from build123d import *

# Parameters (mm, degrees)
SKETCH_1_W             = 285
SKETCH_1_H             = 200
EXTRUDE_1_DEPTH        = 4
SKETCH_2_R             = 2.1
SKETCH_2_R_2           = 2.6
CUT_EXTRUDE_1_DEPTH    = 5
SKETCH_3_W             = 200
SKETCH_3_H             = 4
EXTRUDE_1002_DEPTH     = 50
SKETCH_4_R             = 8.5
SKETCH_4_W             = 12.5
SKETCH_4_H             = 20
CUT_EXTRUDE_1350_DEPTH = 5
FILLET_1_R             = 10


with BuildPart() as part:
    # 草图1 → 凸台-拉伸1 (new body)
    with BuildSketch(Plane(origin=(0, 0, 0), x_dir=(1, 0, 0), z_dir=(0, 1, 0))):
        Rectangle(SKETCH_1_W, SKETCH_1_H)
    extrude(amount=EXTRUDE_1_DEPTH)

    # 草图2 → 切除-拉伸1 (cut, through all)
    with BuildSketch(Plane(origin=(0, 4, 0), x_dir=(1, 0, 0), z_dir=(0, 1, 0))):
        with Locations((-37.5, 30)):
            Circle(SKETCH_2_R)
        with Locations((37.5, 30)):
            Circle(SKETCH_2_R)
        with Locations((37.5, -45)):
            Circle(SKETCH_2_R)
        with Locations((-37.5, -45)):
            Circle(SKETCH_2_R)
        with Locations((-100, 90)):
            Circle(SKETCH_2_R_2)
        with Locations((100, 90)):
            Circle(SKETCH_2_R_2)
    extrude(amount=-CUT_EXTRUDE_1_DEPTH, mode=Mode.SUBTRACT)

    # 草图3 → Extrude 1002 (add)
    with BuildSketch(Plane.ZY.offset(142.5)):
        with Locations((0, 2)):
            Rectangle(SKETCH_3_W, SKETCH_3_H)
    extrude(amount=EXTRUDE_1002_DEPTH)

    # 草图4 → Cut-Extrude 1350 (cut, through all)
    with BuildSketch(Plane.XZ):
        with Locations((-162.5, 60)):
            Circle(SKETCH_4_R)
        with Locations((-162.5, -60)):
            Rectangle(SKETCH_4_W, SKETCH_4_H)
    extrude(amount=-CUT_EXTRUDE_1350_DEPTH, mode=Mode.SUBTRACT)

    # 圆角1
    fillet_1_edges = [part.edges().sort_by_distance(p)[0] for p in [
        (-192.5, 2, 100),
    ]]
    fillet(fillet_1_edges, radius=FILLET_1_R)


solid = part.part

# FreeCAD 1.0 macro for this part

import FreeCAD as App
import Part
import Sketcher
from FreeCAD import Vector


def edges_at(feature, points):
    """Names of the edges that pass closest to the given points."""
    edges = feature.Shape.Edges
    near = lambda p: min(range(len(edges)), key=lambda i: edges[i].distToShape(Part.Vertex(*p))[0])
    return sorted({f"Edge{near(p) + 1}" for p in points})


def add_polygon(sketch, points):
    """Adds a closed chain of lines whose ends are joined by coincident constraints."""
    first, n = sketch.GeometryCount, len(points)
    for a, b in zip(points, points[1:] + points[:1]):
        sketch.addGeometry(Part.LineSegment(App.Vector(*a, 0), App.Vector(*b, 0)), False)
    for i in range(n):
        sketch.addConstraint(Sketcher.Constraint("Coincident", first + i, 2, first + (i + 1) % n, 1))

doc = App.newDocument("Part")
body = doc.addObject("PartDesign::Body", "Body")

# Sketch on XZ plane
sketch1 = body.newObject("Sketcher::SketchObject", "Sketch")
sketch1.AttachmentSupport = (doc.getObject("XZ_Plane"), [""])
sketch1.MapMode = "FlatFace"
add_polygon(sketch1, [(-142, -100), (-142, 100), (142, 100), (142, -100)])  # lines 0-3
sketch1.addConstraint(Sketcher.Constraint("Vertical", 0))
sketch1.addConstraint(Sketcher.Constraint("Horizontal", 1))
sketch1.addConstraint(Sketcher.Constraint("Vertical", 2))
sketch1.addConstraint(Sketcher.Constraint("Horizontal", 3))
sketch1.addConstraint(Sketcher.Constraint("Symmetric", 0, 2, 2, 2, -1, 1))
sketch1.addConstraint(Sketcher.Constraint("DistanceX", 1, 1, 1, 2, 285.0))
sketch1.addConstraint(Sketcher.Constraint("DistanceY", 0, 1, 0, 2, 200.0))
pad1 = body.newObject("PartDesign::Pad", "Pad")
pad1.Profile = sketch1
pad1.Length = 4
pad1.Reversed = True

# Sketch on XZ plane
sketch2 = body.newObject("Sketcher::SketchObject", "Sketch001")
sketch2.AttachmentSupport = (doc.getObject("XZ_Plane"), [""])
sketch2.MapMode = "FlatFace"
sketch2.AttachmentOffset = App.Placement(Vector(0, 0, -4), App.Rotation())
sketch2.addGeometry(Part.Circle(Vector(-37.5, -30, 0), Vector(0, 0, 1), 2.1), False)
sketch2.addGeometry(Part.Circle(Vector(37.5, -30, 0), Vector(0, 0, 1), 2.1), False)
sketch2.addGeometry(Part.Circle(Vector(37.5, 45, 0), Vector(0, 0, 1), 2.1), False)
sketch2.addGeometry(Part.Circle(Vector(-37.5, 45, 0), Vector(0, 0, 1), 2.1), False)
sketch2.addGeometry(Part.Circle(Vector(-100, -90, 0), Vector(0, 0, 1), 2.6), False)
sketch2.addGeometry(Part.Circle(Vector(100, -90, 0), Vector(0, 0, 1), 2.6), False)
sketch2.addConstraint(Sketcher.Constraint("Equal", 0, 1))
sketch2.addConstraint(Sketcher.Constraint("Equal", 1, 2))
sketch2.addConstraint(Sketcher.Constraint("Equal", 2, 3))
sketch2.addConstraint(Sketcher.Constraint("Equal", 4, 5))
sketch2.addConstraint(Sketcher.Constraint("Symmetric", 0, 3, 1, 3, -2))
sketch2.addConstraint(Sketcher.Constraint("Symmetric", 2, 3, 3, 3, -2))
sketch2.addConstraint(Sketcher.Constraint("Symmetric", 4, 3, 5, 3, -2))
sketch2.addConstraint(Sketcher.Constraint("Vertical", 1, 3, 2, 3))
sketch2.addConstraint(Sketcher.Constraint("Diameter", 0, 4.2))
sketch2.addConstraint(Sketcher.Constraint("Diameter", 4, 5.2))
sketch2.addConstraint(Sketcher.Constraint("DistanceY", 0, 3, -1, 1, 30.0))
sketch2.addConstraint(Sketcher.Constraint("DistanceY", -1, 1, 2, 3, 45.0))
sketch2.addConstraint(Sketcher.Constraint("DistanceX", 4, 3, -1, 1, 100.0))
sketch2.addConstraint(Sketcher.Constraint("DistanceY", 4, 3, -1, 1, 90.0))
sketch2.addConstraint(Sketcher.Constraint("DistanceX", 0, 3, 1, 3, 75.0))
pocket1 = body.newObject("PartDesign::Pocket", "Pocket")
pocket1.Profile = sketch2
pocket1.Type = "ThroughAll"
pocket1.Reversed = True

# Sketch on YZ plane
sketch3 = body.newObject("Sketcher::SketchObject", "Sketch002")
sketch3.AttachmentSupport = (doc.getObject("YZ_Plane"), [""])
sketch3.MapMode = "FlatFace"
sketch3.AttachmentOffset = App.Placement(Vector(0, 0, -142.5), App.Rotation())
add_polygon(sketch3, [(4, -100), (0, -100), (0, 100), (4, 100)])  # lines 0-3
sketch3.addConstraint(Sketcher.Constraint("Horizontal", 0))
sketch3.addConstraint(Sketcher.Constraint("Vertical", 1))
sketch3.addConstraint(Sketcher.Constraint("Horizontal", 2))
sketch3.addConstraint(Sketcher.Constraint("Vertical", 3))
sketch3.addConstraint(Sketcher.Constraint("Symmetric", 0, 2, 1, 2, -1, 1))
sketch3.addConstraint(Sketcher.Constraint("DistanceX", 0, 2, 0, 1, 4.0))
sketch3.addConstraint(Sketcher.Constraint("DistanceY", 1, 1, 1, 2, 200.0))
pad2 = body.newObject("PartDesign::Pad", "Pad001")
pad2.Profile = sketch3
pad2.Length = 50
pad2.Reversed = True

# Sketch on XZ plane
sketch4 = body.newObject("Sketcher::SketchObject", "Sketch003")
sketch4.AttachmentSupport = (doc.getObject("XZ_Plane"), [""])
sketch4.MapMode = "FlatFace"
sketch4.addGeometry(Part.Circle(Vector(-162, 60, 0), Vector(0, 0, 1), 8), False)  # 0
add_polygon(sketch4, [(-169, -50), (-169, -70), (-156, -70), (-156, -50)])  # lines 1-4
sketch4.addConstraint(Sketcher.Constraint("Vertical", 1))
sketch4.addConstraint(Sketcher.Constraint("Horizontal", 2))
sketch4.addConstraint(Sketcher.Constraint("Vertical", 3))
sketch4.addConstraint(Sketcher.Constraint("Horizontal", 4))
sketch4.addConstraint(Sketcher.Constraint("Diameter", 0, 17.0))
sketch4.addConstraint(Sketcher.Constraint("DistanceY", 1, 2, 1, 1, 20.0))
sketch4.addConstraint(Sketcher.Constraint("DistanceX", 2, 1, 2, 2, 12.5))
sketch4.addConstraint(Sketcher.Constraint("DistanceY", -1, 1, 0, 3, 60.0))
sketch4.addConstraint(Sketcher.Constraint("DistanceY", 1, 2, -1, 1, 70.0))
sketch4.addConstraint(Sketcher.Constraint("DistanceX", 0, 3, -1, 1, 162.5))
sketch4.addConstraint(Sketcher.Constraint("DistanceX", 1, 2, -1, 1, 168.75))
pocket2 = body.newObject("PartDesign::Pocket", "Pocket001")
pocket2.Profile = sketch4
pocket2.Type = "ThroughAll"
doc.recompute()

fillet = body.newObject("PartDesign::Fillet", "Fillet")
fillet.Base = (pocket2, edges_at(pocket2, [(-192.5, 2, 100)]))
fillet.Radius = 10

doc.recompute()
